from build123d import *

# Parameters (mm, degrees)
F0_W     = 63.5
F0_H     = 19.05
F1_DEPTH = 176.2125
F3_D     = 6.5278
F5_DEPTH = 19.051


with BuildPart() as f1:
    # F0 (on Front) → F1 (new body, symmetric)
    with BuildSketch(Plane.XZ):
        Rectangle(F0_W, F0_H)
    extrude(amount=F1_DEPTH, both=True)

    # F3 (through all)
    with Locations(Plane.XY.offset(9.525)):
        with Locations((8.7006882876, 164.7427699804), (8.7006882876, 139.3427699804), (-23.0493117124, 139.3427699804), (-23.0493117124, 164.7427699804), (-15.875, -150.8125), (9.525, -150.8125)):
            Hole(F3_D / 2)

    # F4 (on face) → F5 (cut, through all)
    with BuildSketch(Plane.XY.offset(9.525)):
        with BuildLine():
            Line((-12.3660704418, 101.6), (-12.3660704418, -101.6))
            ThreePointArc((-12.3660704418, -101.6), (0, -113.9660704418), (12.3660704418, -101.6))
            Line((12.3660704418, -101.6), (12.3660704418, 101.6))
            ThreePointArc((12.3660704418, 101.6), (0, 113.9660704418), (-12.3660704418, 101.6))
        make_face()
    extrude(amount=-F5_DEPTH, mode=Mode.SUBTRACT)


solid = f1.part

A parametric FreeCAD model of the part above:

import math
import FreeCAD as App
import Part
import Sketcher

V = App.Vector
Q = App.Units.Quantity

doc = App.newDocument("Part")
body = doc.addObject("PartDesign::Body", "Body")

sketch1 = body.newObject("Sketcher::SketchObject", "Sketch")
sketch1.AttachmentSupport = (doc.getObject("XZ_Plane"), [""])
sketch1.MapMode = "FlatFace"
sketch1.addGeometry(Part.LineSegment(V(-32, 10, 0), V(-32, -10, 0)), False)
sketch1.addGeometry(Part.LineSegment(V(-32, -10, 0), V(32, -10, 0)), False)
sketch1.addGeometry(Part.LineSegment(V(32, -10, 0), V(32, 10, 0)), False)
sketch1.addGeometry(Part.LineSegment(V(32, 10, 0), V(-32, 10, 0)), False)
sketch1.addConstraint(Sketcher.Constraint("Coincident", 0, 2, 1, 1))
sketch1.addConstraint(Sketcher.Constraint("Coincident", 1, 2, 2, 1))
sketch1.addConstraint(Sketcher.Constraint("Coincident", 2, 2, 3, 1))
sketch1.addConstraint(Sketcher.Constraint("Coincident", 3, 2, 0, 1))
sketch1.addConstraint(Sketcher.Constraint("Vertical", 0))
sketch1.addConstraint(Sketcher.Constraint("Horizontal", 1))
sketch1.addConstraint(Sketcher.Constraint("Vertical", 2))
sketch1.addConstraint(Sketcher.Constraint("Horizontal", 3))
sketch1.addConstraint(Sketcher.Constraint("Symmetric", 0, 2, 2, 2, -1, 1))
sketch1.addConstraint(Sketcher.Constraint("DistanceX", 1, 1, 1, 2, Q("2.5 in")))
sketch1.addConstraint(Sketcher.Constraint("DistanceY", 0, 2, 0, 1, Q("0.75 in")))
pad1 = body.newObject("PartDesign::Pad", "Pad")
pad1.Profile = sketch1
pad1.Length = Q("13.875 in")
pad1.Midplane = True

sketch2 = body.newObject("Sketcher::SketchObject", "Sketch001")
sketch2.AttachmentSupport = (doc.getObject("XY_Plane"), [""])
sketch2.MapMode = "FlatFace"
sketch2.AttachmentOffset = App.Placement(V(0, 0, 0.375 * 25.4), App.Rotation())
sketch2.addGeometry(Part.Circle(V(8.7, 164.7, 0), V(0, 0, 1), 3.3), False)
sketch2.addGeometry(Part.Circle(V(8.7, 139.3, 0), V(0, 0, 1), 3.3), False)
sketch2.addGeometry(Part.Circle(V(-23, 139.3, 0), V(0, 0, 1), 3.3), False)
sketch2.addGeometry(Part.Circle(V(-23, 164.7, 0), V(0, 0, 1), 3.3), False)
sketch2.addGeometry(Part.Circle(V(-15.9, -150.8, 0), V(0, 0, 1), 3.3), False)
sketch2.addGeometry(Part.Circle(V(9.5, -150.8, 0), V(0, 0, 1), 3.3), False)
sketch2.addConstraint(Sketcher.Constraint("Equal", 0, 1))
sketch2.addConstraint(Sketcher.Constraint("Equal", 1, 2))
sketch2.addConstraint(Sketcher.Constraint("Equal", 2, 3))
sketch2.addConstraint(Sketcher.Constraint("Equal", 3, 4))
sketch2.addConstraint(Sketcher.Constraint("Equal", 4, 5))
sketch2.addConstraint(Sketcher.Constraint("Horizontal", 1, 3, 2, 3))
sketch2.addConstraint(Sketcher.Constraint("Horizontal", 0, 3, 3, 3))
sketch2.addConstraint(Sketcher.Constraint("Horizontal", 4, 3, 5, 3))
sketch2.addConstraint(Sketcher.Constraint("Vertical", 0, 3, 1, 3))
sketch2.addConstraint(Sketcher.Constraint("Vertical", 2, 3, 3, 3))
sketch2.addConstraint(Sketcher.Constraint("Diameter", 0, Q("0.257 in")))
sketch2.addConstraint(Sketcher.Constraint("DistanceY", 1, 3, 0, 3, Q("1 in")))
sketch2.addConstraint(Sketcher.Constraint("DistanceX", 4, 3, 5, 3, Q("1 in")))
sketch2.addConstraint(Sketcher.Constraint("DistanceX", 2, 3, 1, 3, Q("1.25 in")))
sketch2.addConstraint(Sketcher.Constraint("DistanceX", 4, 3, -1, 1, Q("0.625 in")))
sketch2.addConstraint(Sketcher.Constraint("DistanceY", 4, 3, -1, 1, Q("5.9375 in")))
sketch2.addConstraint(Sketcher.Constraint("DistanceX", -1, 1, 0, 3, Q("8.700688 mm")))
sketch2.addConstraint(Sketcher.Constraint("DistanceY", -1, 1, 0, 3, Q("164.74277 mm")))
doc.recompute()
hole = body.newObject("PartDesign::Hole", "Hole")
hole.Profile = sketch2
hole.ThreadType = "None"
hole.Diameter = Q("0.257 in")
hole.DepthType = "ThroughAll"

sketch3 = body.newObject("Sketcher::SketchObject", "Sketch002")
sketch3.AttachmentSupport = (doc.getObject("XY_Plane"), [""])
sketch3.MapMode = "FlatFace"
sketch3.AttachmentOffset = App.Placement(V(0, 0, 0.375 * 25.4), App.Rotation())
sketch3.addGeometry(Part.LineSegment(V(-12, 102, 0), V(-12, -102, 0)), False)
sketch3.addGeometry(Part.ArcOfCircle(Part.Circle(V(0, -102, 0), V(0, 0, 1), 12), math.radians(180), math.radians(360)), False)
sketch3.addGeometry(Part.LineSegment(V(12, -102, 0), V(12, 102, 0)), False)
sketch3.addGeometry(Part.ArcOfCircle(Part.Circle(V(0, 102, 0), V(0, 0, 1), 12), math.radians(0), math.radians(180)), False)
sketch3.addConstraint(Sketcher.Constraint("Tangent", 0, 2, 1, 1))
sketch3.addConstraint(Sketcher.Constraint("Tangent", 1, 2, 2, 1))
sketch3.addConstraint(Sketcher.Constraint("Tangent", 2, 2, 3, 1))
sketch3.addConstraint(Sketcher.Constraint("Tangent", 3, 2, 0, 1))
sketch3.addConstraint(Sketcher.Constraint("Vertical", 0))
sketch3.addConstraint(Sketcher.Constraint("Vertical", 2))
sketch3.addConstraint(Sketcher.Constraint("Symmetric", 1, 3, 3, 3, -1, 1))
sketch3.addConstraint(Sketcher.Constraint("DistanceY", 0, 2, 0, 1, Q("8 in")))
sketch3.addConstraint(Sketcher.Constraint("Radius", 1, Q("12.36607 mm")))
pocket1 = body.newObject("PartDesign::Pocket", "Pocket")
pocket1.Profile = sketch3
pocket1.Type = "ThroughAll"

doc.recompute()
